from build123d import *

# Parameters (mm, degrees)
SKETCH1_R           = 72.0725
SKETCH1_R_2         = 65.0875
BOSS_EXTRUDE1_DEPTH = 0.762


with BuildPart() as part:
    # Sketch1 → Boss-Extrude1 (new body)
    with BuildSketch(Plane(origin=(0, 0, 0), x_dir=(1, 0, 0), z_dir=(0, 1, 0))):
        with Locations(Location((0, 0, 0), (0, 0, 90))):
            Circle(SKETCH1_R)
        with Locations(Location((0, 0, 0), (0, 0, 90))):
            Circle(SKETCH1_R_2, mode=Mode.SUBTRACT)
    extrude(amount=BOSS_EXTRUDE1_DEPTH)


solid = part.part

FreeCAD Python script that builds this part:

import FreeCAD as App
import Part
import Sketcher

V = App.Vector
Q = App.Units.Quantity

doc = App.newDocument("Part")
params = doc.addObject("Spreadsheet::Sheet", "Params")
for row, (alias, value) in enumerate([
    ("sketch1_diameter", "5.675 in"),
    ("sketch1_diameter2", "5.125 in"),
    ("pad1_length", "0.03 in"),
], start=1):
    params.set(f"A{row}", alias)
    params.set(f"B{row}", "=" + value)
    params.setAlias(f"B{row}", alias)

body = doc.addObject("PartDesign::Body", "Body")

sketch1 = doc.addObject("Sketcher::SketchObject", "Sketch")
body.addObject(sketch1)
sketch1.AttachmentSupport = (doc.XZ_Plane, [""])
sketch1.MapMode = "FlatFace"
sketch1.addGeometry([
    Part.Circle(V(0, 0, 0), V(0, 0, 1), 72.0725),
    Part.Circle(V(0, 0, 0), V(0, 0, 1), 65.0875),
], False)
sketch1.addConstraint([
    Sketcher.Constraint("Coincident", 0, 3, -1, 1),
    Sketcher.Constraint("Coincident", 1, 3, -1, 1),
    Sketcher.Constraint("Diameter", 0, Q("5.675 in")),
    Sketcher.Constraint("Diameter", 1, Q("5.125 in")),
])
sketch1.setExpression("Constraints[2]", "Params.sketch1_diameter")
sketch1.setExpression("Constraints[3]", "Params.sketch1_diameter2")
pad1 = doc.addObject("PartDesign::Pad", "Pad")
body.addObject(pad1)
pad1.Profile = sketch1
pad1.setExpression("Length", "Params.pad1_length")
pad1.Reversed = True

doc.recompute()
